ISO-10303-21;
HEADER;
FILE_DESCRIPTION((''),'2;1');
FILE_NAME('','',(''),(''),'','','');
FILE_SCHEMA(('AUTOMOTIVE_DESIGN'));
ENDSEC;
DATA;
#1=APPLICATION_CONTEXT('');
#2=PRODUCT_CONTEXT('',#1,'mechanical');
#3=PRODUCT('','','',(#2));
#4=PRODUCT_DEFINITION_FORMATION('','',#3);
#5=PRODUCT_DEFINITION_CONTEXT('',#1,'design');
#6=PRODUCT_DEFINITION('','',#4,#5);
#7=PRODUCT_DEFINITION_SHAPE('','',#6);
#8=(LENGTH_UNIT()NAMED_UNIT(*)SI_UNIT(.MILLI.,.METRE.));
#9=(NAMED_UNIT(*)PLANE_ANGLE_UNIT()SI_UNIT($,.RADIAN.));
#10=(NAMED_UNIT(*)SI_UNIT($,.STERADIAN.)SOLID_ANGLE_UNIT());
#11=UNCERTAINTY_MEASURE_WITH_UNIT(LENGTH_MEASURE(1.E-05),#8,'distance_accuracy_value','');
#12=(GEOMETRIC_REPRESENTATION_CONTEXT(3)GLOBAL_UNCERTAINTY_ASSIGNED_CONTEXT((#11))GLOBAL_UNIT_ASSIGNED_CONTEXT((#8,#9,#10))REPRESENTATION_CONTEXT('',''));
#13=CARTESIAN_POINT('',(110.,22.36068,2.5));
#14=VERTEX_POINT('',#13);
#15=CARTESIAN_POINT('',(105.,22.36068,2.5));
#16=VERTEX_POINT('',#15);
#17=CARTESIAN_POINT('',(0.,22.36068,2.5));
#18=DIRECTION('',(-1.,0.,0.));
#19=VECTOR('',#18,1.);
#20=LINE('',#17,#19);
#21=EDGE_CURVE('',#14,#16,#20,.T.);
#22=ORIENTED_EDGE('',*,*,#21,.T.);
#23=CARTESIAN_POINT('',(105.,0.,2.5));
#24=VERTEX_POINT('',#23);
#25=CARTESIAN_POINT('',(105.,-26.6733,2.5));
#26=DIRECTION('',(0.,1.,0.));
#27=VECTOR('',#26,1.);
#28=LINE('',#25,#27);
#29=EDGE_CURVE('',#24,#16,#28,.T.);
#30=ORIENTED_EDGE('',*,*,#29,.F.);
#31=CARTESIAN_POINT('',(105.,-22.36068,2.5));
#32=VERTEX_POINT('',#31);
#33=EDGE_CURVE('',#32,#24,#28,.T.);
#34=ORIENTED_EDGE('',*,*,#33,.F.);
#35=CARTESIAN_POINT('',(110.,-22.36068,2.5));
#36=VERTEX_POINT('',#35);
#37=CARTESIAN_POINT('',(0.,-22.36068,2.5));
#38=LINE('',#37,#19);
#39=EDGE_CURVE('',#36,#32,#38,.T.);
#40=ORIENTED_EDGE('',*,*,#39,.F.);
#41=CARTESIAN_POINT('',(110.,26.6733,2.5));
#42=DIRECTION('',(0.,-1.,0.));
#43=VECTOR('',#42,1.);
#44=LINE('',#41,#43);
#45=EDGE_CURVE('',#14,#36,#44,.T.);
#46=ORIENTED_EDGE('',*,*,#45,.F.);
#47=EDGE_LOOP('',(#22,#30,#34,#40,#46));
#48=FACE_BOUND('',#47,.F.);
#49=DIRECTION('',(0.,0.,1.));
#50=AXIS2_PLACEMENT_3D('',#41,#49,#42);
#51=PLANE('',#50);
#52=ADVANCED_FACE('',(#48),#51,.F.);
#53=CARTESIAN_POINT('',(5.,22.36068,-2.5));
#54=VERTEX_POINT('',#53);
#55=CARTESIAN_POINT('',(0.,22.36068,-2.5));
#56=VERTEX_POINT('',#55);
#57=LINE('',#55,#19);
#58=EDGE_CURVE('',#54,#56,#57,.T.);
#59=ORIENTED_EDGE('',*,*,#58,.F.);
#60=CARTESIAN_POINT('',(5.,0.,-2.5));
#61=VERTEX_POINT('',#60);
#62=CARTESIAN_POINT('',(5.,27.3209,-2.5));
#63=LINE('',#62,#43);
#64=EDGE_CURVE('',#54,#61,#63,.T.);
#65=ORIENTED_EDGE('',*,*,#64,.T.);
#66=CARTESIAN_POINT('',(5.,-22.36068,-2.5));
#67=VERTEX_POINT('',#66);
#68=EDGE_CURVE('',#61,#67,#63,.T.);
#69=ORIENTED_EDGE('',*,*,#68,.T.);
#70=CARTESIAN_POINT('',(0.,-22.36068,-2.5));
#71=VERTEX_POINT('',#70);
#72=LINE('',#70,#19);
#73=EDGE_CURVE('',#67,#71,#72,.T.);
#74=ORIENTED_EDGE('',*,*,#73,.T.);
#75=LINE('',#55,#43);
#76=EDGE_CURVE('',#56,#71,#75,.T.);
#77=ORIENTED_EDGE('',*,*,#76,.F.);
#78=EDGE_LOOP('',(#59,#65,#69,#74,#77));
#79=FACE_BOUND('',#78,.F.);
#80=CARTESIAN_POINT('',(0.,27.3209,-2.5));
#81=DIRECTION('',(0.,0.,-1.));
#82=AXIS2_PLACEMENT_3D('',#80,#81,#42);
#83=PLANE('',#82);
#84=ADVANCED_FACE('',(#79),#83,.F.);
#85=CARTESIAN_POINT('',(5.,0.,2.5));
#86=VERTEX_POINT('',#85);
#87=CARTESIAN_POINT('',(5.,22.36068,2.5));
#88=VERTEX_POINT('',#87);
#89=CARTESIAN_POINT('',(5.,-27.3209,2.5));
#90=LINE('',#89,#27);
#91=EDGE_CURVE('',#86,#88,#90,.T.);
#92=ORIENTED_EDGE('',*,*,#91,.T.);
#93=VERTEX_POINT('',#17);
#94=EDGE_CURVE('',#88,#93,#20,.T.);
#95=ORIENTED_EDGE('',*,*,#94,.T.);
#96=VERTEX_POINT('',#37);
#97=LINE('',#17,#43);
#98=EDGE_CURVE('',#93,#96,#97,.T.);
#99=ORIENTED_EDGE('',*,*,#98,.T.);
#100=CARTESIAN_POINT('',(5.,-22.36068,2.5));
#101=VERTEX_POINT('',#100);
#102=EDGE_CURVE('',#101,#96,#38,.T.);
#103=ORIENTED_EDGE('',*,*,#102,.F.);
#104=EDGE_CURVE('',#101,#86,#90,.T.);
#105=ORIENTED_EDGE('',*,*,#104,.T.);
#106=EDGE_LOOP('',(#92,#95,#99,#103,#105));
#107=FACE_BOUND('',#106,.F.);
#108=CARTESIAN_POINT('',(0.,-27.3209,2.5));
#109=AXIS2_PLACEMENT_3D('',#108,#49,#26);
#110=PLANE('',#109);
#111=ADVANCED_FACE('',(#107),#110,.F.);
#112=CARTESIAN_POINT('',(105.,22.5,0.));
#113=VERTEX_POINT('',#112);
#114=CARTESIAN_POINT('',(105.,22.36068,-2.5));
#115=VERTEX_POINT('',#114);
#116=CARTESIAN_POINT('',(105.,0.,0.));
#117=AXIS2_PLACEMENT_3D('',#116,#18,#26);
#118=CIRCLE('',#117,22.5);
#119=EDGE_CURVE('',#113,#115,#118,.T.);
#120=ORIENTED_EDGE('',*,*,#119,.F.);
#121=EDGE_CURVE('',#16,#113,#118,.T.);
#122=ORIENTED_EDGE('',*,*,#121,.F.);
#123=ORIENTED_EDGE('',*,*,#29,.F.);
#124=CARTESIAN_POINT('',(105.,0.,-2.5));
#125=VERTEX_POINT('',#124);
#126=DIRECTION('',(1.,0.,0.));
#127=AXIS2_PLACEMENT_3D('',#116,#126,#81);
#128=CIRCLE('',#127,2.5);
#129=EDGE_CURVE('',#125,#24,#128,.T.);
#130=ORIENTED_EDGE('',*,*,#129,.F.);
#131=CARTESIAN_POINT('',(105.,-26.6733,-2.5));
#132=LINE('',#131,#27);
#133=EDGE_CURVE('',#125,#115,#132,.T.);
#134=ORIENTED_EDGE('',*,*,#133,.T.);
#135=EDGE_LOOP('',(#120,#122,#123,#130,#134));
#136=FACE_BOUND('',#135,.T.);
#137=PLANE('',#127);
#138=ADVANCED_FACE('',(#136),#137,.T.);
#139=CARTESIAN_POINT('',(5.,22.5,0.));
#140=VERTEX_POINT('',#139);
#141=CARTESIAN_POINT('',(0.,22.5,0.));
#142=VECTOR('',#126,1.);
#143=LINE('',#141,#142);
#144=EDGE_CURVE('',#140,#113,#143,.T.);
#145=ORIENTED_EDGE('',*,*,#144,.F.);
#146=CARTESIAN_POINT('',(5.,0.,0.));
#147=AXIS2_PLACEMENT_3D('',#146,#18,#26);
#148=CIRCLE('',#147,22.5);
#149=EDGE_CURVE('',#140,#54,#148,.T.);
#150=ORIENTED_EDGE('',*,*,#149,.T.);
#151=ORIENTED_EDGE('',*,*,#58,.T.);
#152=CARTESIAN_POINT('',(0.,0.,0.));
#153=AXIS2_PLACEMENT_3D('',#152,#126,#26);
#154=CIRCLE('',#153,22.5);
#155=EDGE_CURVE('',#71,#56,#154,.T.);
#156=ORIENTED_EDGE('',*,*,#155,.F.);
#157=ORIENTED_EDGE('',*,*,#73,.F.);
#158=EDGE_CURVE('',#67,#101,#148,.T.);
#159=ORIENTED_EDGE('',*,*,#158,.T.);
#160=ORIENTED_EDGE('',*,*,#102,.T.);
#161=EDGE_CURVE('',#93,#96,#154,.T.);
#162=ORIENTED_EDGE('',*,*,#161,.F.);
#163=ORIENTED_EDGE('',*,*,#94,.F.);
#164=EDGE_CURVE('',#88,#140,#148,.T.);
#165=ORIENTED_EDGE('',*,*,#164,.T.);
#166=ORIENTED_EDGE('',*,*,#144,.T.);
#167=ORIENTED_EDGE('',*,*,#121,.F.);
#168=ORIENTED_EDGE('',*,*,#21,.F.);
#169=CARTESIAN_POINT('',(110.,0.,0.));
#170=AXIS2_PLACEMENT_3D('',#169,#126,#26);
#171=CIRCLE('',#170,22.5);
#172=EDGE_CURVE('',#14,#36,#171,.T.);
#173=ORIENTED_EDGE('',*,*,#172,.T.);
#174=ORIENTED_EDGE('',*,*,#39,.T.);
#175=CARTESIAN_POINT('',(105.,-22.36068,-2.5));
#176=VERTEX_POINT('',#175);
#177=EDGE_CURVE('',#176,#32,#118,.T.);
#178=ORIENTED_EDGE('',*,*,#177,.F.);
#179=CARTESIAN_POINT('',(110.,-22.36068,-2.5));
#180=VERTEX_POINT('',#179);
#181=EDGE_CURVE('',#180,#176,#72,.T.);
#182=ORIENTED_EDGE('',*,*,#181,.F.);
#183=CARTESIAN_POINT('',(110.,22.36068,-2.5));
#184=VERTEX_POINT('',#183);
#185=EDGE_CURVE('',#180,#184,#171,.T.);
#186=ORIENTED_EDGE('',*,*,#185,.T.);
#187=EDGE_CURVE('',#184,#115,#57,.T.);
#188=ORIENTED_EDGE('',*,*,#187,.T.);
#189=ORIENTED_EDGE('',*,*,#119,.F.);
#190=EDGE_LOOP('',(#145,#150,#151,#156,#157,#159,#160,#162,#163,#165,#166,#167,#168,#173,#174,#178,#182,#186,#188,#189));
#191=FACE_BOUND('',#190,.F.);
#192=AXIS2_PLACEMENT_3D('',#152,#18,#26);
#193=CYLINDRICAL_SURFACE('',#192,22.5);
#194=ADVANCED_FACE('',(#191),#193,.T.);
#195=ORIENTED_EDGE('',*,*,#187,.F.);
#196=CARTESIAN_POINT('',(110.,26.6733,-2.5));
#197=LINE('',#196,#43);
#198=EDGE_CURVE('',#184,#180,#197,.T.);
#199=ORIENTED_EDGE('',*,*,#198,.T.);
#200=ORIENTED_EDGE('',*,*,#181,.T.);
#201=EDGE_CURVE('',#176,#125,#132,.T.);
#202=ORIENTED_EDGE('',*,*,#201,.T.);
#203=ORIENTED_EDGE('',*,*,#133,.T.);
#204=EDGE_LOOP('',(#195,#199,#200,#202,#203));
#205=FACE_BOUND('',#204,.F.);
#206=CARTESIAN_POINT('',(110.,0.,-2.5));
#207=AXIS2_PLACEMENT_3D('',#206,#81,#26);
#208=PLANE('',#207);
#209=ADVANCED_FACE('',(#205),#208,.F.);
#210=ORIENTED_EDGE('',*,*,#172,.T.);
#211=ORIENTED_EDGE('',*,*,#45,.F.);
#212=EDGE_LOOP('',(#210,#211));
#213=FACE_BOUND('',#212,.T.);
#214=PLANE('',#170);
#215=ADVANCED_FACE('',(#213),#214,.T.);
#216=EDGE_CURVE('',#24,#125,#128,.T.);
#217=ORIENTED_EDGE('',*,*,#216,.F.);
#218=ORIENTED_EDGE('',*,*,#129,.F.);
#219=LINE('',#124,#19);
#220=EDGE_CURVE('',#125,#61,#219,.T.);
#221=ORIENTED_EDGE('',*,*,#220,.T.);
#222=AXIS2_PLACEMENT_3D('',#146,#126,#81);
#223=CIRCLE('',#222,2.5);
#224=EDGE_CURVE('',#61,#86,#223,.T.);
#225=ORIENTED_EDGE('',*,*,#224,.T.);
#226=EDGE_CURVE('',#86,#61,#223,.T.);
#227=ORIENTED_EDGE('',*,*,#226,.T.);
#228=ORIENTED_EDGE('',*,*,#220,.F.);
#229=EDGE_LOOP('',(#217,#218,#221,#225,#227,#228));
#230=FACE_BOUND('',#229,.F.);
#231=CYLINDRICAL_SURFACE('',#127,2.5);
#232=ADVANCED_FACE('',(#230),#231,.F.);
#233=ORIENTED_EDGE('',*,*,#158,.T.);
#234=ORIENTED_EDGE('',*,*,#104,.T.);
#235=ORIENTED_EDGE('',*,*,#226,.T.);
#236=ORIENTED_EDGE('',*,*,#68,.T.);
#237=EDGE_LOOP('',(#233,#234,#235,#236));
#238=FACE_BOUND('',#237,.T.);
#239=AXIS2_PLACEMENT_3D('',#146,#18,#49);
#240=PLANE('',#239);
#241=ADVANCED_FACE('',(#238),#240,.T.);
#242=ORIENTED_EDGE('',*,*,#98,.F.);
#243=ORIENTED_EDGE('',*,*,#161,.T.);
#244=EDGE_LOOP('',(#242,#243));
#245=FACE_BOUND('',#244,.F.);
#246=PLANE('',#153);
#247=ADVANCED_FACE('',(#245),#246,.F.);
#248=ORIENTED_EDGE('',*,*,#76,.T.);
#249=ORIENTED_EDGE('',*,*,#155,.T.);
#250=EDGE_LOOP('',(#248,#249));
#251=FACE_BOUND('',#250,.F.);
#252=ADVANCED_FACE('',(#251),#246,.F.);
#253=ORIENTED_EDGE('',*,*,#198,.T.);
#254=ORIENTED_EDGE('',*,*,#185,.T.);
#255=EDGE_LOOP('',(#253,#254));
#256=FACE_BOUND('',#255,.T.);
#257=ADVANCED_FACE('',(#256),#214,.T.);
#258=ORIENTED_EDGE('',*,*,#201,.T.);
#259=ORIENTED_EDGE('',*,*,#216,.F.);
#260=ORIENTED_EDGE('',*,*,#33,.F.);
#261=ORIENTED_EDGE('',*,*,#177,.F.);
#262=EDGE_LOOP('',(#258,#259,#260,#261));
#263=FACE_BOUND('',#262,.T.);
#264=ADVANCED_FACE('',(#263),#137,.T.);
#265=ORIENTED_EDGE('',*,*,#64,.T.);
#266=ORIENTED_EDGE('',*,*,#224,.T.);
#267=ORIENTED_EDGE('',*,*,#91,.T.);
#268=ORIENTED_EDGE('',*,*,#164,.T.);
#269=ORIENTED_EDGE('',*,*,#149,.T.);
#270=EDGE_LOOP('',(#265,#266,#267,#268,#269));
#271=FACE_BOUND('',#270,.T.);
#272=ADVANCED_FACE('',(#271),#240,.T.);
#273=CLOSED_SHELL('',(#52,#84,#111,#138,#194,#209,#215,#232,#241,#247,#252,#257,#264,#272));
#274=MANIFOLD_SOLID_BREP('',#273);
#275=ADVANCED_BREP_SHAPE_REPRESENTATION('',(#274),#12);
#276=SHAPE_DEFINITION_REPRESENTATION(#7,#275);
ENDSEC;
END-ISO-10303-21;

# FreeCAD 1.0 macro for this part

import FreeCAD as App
import Part
import Sketcher

V = App.Vector


def add_polygon(sketch, points):
    """Adds a closed chain of lines whose ends are joined by coincident constraints."""
    first, n = sketch.GeometryCount, len(points)
    for a, b in zip(points, points[1:] + points[:1]):
        sketch.addGeometry(Part.LineSegment(App.Vector(*a, 0), App.Vector(*b, 0)), False)
    for i in range(n):
        sketch.addConstraint(Sketcher.Constraint("Coincident", first + i, 2, first + (i + 1) % n, 1))

doc = App.newDocument("Part")
body = doc.addObject("PartDesign::Body", "Body")

# Sketch on YZ plane
sketch1 = body.newObject("Sketcher::SketchObject", "Sketch")
sketch1.AttachmentSupport = (doc.getObject("YZ_Plane"), [""])
sketch1.MapMode = "FlatFace"
sketch1.addGeometry(Part.Circle(V(0, 0, 0), V(0, 0, 1), 22.5), False)
sketch1.addConstraint([
    Sketcher.Constraint("Coincident", 0, 3, -1, 1),
    Sketcher.Constraint("Diameter", 0, 45.0),
])
pad1 = body.newObject("PartDesign::Pad", "Pad")
pad1.Profile = sketch1
pad1.Length = 110

# Sketch on YZ plane
sketch2 = body.newObject("Sketcher::SketchObject", "Sketch001")
sketch2.AttachmentSupport = (doc.getObject("YZ_Plane"), [""])
sketch2.MapMode = "FlatFace"
sketch2.AttachmentOffset = App.Placement(V(0, 0, 110), App.Rotation())
add_polygon(sketch2, [(26.6733, -2.5), (26.6733, 2.5), (-26.6733, 2.5), (-26.6733, -2.5)])  # lines 0-3
sketch2.addConstraint([
    Sketcher.Constraint("Vertical", 0),
    Sketcher.Constraint("Horizontal", 1),
    Sketcher.Constraint("Vertical", 2),
    Sketcher.Constraint("Horizontal", 3),
    Sketcher.Constraint("Symmetric", 0, 2, 2, 2, -1, 1),
    Sketcher.Constraint("DistanceY", 0, 1, 0, 2, 5.0),
    Sketcher.Constraint("DistanceX", 1, 2, 1, 1, 53.3466),
])
pocket1 = body.newObject("PartDesign::Pocket", "Pocket")
pocket1.Profile = sketch2
pocket1.Length = 5

# Sketch on YZ plane
sketch3 = body.newObject("Sketcher::SketchObject", "Sketch002")
sketch3.AttachmentSupport = (doc.getObject("YZ_Plane"), [""])
sketch3.MapMode = "FlatFace"
add_polygon(sketch3, [(27.3209, -2.5), (-27.3209, -2.5), (-27.3209, 2.5), (27.3209, 2.5)])  # lines 0-3
sketch3.addConstraint([
    Sketcher.Constraint("Horizontal", 0),
    Sketcher.Constraint("Vertical", 1),
    Sketcher.Constraint("Horizontal", 2),
    Sketcher.Constraint("Vertical", 3),
    Sketcher.Constraint("Symmetric", 0, 2, 2, 2, -1, 1),
    Sketcher.Constraint("DistanceY", 1, 1, 1, 2, 5.0),
    Sketcher.Constraint("DistanceX", 0, 2, 0, 1, 54.6418),
])
pocket2 = body.newObject("PartDesign::Pocket", "Pocket001")
pocket2.Profile = sketch3
pocket2.Length = 5
pocket2.Reversed = True

# Sketch on YZ plane
sketch4 = body.newObject("Sketcher::SketchObject", "Sketch003")
sketch4.AttachmentSupport = (doc.getObject("YZ_Plane"), [""])
sketch4.MapMode = "FlatFace"
sketch4.AttachmentOffset = App.Placement(V(0, 0, 105), App.Rotation())
sketch4.addGeometry(Part.Circle(V(0, 0, 0), V(0, 0, 1), 2.5), False)
sketch4.addConstraint([
    Sketcher.Constraint("Coincident", 0, 3, -1, 1),
    Sketcher.Constraint("Diameter", 0, 5.0),
])
pocket3 = body.newObject("PartDesign::Pocket", "Pocket002")
pocket3.Profile = sketch4
pocket3.Length = 110

doc.recompute()
